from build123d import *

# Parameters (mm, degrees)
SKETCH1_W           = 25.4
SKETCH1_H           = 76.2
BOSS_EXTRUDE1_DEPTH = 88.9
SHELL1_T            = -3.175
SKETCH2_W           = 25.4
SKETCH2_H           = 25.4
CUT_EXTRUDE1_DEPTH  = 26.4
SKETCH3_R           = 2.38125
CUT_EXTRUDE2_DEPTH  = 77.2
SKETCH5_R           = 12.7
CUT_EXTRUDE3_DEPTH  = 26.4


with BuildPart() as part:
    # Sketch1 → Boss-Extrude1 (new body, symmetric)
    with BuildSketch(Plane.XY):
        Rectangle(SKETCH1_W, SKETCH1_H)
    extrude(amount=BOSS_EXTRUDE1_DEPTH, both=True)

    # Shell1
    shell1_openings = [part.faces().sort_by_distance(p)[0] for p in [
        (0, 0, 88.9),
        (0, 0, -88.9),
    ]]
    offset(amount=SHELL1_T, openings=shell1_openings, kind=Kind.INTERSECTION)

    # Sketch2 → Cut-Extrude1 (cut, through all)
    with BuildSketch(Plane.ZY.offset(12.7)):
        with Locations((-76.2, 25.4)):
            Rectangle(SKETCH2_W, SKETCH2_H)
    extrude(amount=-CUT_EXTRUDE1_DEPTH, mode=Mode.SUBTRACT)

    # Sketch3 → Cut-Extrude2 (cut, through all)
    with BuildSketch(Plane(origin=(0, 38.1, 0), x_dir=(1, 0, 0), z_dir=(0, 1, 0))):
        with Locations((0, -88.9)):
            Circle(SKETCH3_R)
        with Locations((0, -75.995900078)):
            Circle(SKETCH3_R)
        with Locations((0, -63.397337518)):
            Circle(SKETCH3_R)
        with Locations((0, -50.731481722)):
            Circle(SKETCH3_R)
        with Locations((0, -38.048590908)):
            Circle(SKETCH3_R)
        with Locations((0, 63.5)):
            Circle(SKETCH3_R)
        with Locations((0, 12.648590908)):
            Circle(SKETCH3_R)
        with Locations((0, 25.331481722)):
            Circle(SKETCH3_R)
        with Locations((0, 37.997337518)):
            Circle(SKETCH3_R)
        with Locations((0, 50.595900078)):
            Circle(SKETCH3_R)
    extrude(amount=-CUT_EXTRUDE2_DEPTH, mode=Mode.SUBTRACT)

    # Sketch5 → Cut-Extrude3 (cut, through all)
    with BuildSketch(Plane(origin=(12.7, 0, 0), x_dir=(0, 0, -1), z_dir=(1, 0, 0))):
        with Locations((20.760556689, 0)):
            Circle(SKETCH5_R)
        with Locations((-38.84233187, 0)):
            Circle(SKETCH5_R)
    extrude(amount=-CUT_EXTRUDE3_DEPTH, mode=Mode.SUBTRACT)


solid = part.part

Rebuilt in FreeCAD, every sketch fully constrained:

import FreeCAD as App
import Part
import Sketcher

V = App.Vector
Q = App.Units.Quantity


def faces_at(feature, points):
    """Names of the faces that lie closest to the given points."""
    faces = feature.Shape.Faces
    near = lambda p: min(range(len(faces)), key=lambda i: faces[i].distToShape(Part.Vertex(*p))[0])
    return sorted({f"Face{near(p) + 1}" for p in points})


def add_polygon(sketch, points):
    """Adds a closed chain of lines whose ends are joined by coincident constraints."""
    first, n = sketch.GeometryCount, len(points)
    for a, b in zip(points, points[1:] + points[:1]):
        sketch.addGeometry(Part.LineSegment(App.Vector(*a, 0), App.Vector(*b, 0)), False)
    for i in range(n):
        sketch.addConstraint(Sketcher.Constraint("Coincident", first + i, 2, first + (i + 1) % n, 1))

doc = App.newDocument("Part")
body = doc.addObject("PartDesign::Body", "Body")

sketch1 = doc.addObject("Sketcher::SketchObject", "Sketch")
body.addObject(sketch1)
sketch1.AttachmentSupport = (doc.XY_Plane, [""])
sketch1.MapMode = "FlatFace"
add_polygon(sketch1, [(-13, 38), (-13, -38), (13, -38), (13, 38)])
sketch1.addConstraint(Sketcher.Constraint("Vertical", 0))
sketch1.addConstraint(Sketcher.Constraint("Horizontal", 1))
sketch1.addConstraint(Sketcher.Constraint("Vertical", 2))
sketch1.addConstraint(Sketcher.Constraint("Horizontal", 3))
sketch1.addConstraint(Sketcher.Constraint("Symmetric", 0, 2, 2, 2, -1, 1))
sketch1.addConstraint(Sketcher.Constraint("DistanceX", 1, 1, 1, 2, Q("1 in")))
sketch1.addConstraint(Sketcher.Constraint("DistanceY", 0, 2, 0, 1, Q("3 in")))
pad1 = doc.addObject("PartDesign::Pad", "Pad")
body.addObject(pad1)
pad1.Profile = sketch1
pad1.Length = Q("7 in")
pad1.Midplane = True
doc.recompute()

thickness = doc.addObject("PartDesign::Thickness", "Thickness")
body.addObject(thickness)
thickness.Base = (pad1, faces_at(pad1, [(0, 0, 88.9), (0, 0, -88.9)]))
thickness.Value = Q("0.125 in")
thickness.Reversed = True
thickness.Join = "Intersection"

sketch2 = doc.addObject("Sketcher::SketchObject", "Sketch001")
body.addObject(sketch2)
sketch2.AttachmentSupport = (doc.YZ_Plane, [""])
sketch2.MapMode = "FlatFace"
sketch2.AttachmentOffset = App.Placement(V(0, 0, -0.5 * 25.4), App.Rotation())
add_polygon(sketch2, [(38, -89), (13, -89), (13, -64), (38, -64)])
sketch2.addConstraint(Sketcher.Constraint("Horizontal", 0))
sketch2.addConstraint(Sketcher.Constraint("Vertical", 1))
sketch2.addConstraint(Sketcher.Constraint("Horizontal", 2))
sketch2.addConstraint(Sketcher.Constraint("Vertical", 3))
sketch2.addConstraint(Sketcher.Constraint("Equal", 2, 1))
sketch2.addConstraint(Sketcher.Constraint("DistanceX", 0, 2, 0, 1, Q("1 in")))
sketch2.addConstraint(Sketcher.Constraint("DistanceX", -1, 1, 0, 2, Q("0.5 in")))
sketch2.addConstraint(Sketcher.Constraint("DistanceY", 0, 2, -1, 1, Q("3.5 in")))
pocket1 = doc.addObject("PartDesign::Pocket", "Pocket")
body.addObject(pocket1)
pocket1.Profile = sketch2
pocket1.Type = "ThroughAll"
pocket1.Reversed = True

sketch3 = doc.addObject("Sketcher::SketchObject", "Sketch002")
body.addObject(sketch3)
sketch3.AttachmentSupport = (doc.XZ_Plane, [""])
sketch3.MapMode = "FlatFace"
sketch3.AttachmentOffset = App.Placement(V(0, 0, -1.5 * 25.4), App.Rotation())
sketch3.addGeometry(Part.Circle(V(0, 88.9, 0), V(0, 0, 1), 2.4), False)
sketch3.addGeometry(Part.Circle(V(0, 76, 0), V(0, 0, 1), 2.4), False)
sketch3.addGeometry(Part.Circle(V(0, 63.4, 0), V(0, 0, 1), 2.4), False)
sketch3.addGeometry(Part.Circle(V(0, 50.7, 0), V(0, 0, 1), 2.4), False)
sketch3.addGeometry(Part.Circle(V(0, 38, 0), V(0, 0, 1), 2.4), False)
sketch3.addGeometry(Part.Circle(V(0, -63.5, 0), V(0, 0, 1), 2.4), False)
sketch3.addGeometry(Part.Circle(V(0, -12.6, 0), V(0, 0, 1), 2.4), False)
sketch3.addGeometry(Part.Circle(V(0, -25.3, 0), V(0, 0, 1), 2.4), False)
sketch3.addGeometry(Part.Circle(V(0, -38, 0), V(0, 0, 1), 2.4), False)
sketch3.addGeometry(Part.Circle(V(0, -50.6, 0), V(0, 0, 1), 2.4), False)
sketch3.addConstraint(Sketcher.Constraint("Equal", 0, 1))
sketch3.addConstraint(Sketcher.Constraint("Equal", 1, 2))
sketch3.addConstraint(Sketcher.Constraint("Equal", 2, 3))
sketch3.addConstraint(Sketcher.Constraint("Equal", 3, 4))
sketch3.addConstraint(Sketcher.Constraint("Equal", 4, 5))
sketch3.addConstraint(Sketcher.Constraint("Equal", 5, 6))
sketch3.addConstraint(Sketcher.Constraint("Equal", 6, 7))
sketch3.addConstraint(Sketcher.Constraint("Equal", 7, 8))
sketch3.addConstraint(Sketcher.Constraint("Equal", 8, 9))
sketch3.addConstraint(Sketcher.Constraint("PointOnObject", 0, 3, -2))
sketch3.addConstraint(Sketcher.Constraint("PointOnObject", 1, 3, -2))
sketch3.addConstraint(Sketcher.Constraint("PointOnObject", 2, 3, -2))
sketch3.addConstraint(Sketcher.Constraint("PointOnObject", 3, 3, -2))
sketch3.addConstraint(Sketcher.Constraint("PointOnObject", 4, 3, -2))
sketch3.addConstraint(Sketcher.Constraint("PointOnObject", 5, 3, -2))
sketch3.addConstraint(Sketcher.Constraint("PointOnObject", 6, 3, -2))
sketch3.addConstraint(Sketcher.Constraint("PointOnObject", 7, 3, -2))
sketch3.addConstraint(Sketcher.Constraint("PointOnObject", 8, 3, -2))
sketch3.addConstraint(Sketcher.Constraint("PointOnObject", 9, 3, -2))
sketch3.addConstraint(Sketcher.Constraint("Diameter", 0, Q("0.1875 in")))
sketch3.addConstraint(Sketcher.Constraint("DistanceY", 5, 3, 0, 3, Q("6 in")))
sketch3.addConstraint(Sketcher.Constraint("DistanceY", -1, 1, 0, 3, Q("3.5 in")))
sketch3.addConstraint(Sketcher.Constraint("DistanceY", -1, 1, 1, 3, 75.9959))
sketch3.addConstraint(Sketcher.Constraint("DistanceY", 9, 3, -1, 1, 50.5959))
sketch3.addConstraint(Sketcher.Constraint("DistanceY", -1, 1, 3, 3, 50.731482))
sketch3.addConstraint(Sketcher.Constraint("DistanceY", -1, 1, 4, 3, 38.048591))
sketch3.addConstraint(Sketcher.Constraint("DistanceY", 6, 3, -1, 1, 12.648591))
sketch3.addConstraint(Sketcher.Constraint("DistanceY", 7, 3, -1, 1, 25.331482))
sketch3.addConstraint(Sketcher.Constraint("DistanceY", 6, 3, 2, 3, 76.045928))
sketch3.addConstraint(Sketcher.Constraint("DistanceY", 8, 3, 4, 3, 76.045928))
pocket2 = doc.addObject("PartDesign::Pocket", "Pocket001")
body.addObject(pocket2)
pocket2.Profile = sketch3
pocket2.Type = "ThroughAll"
pocket2.Reversed = True

sketch4 = doc.addObject("Sketcher::SketchObject", "Sketch003")
body.addObject(sketch4)
sketch4.AttachmentSupport = (doc.YZ_Plane, [""])
sketch4.MapMode = "FlatFace"
sketch4.AttachmentOffset = App.Placement(V(0, 0, 0.5 * 25.4), App.Rotation())
sketch4.addGeometry(Part.Circle(V(0, -21, 0), V(0, 0, 1), 13), False)
sketch4.addGeometry(Part.Circle(V(0, 39, 0), V(0, 0, 1), 13), False)
sketch4.addConstraint(Sketcher.Constraint("Equal", 0, 1))
sketch4.addConstraint(Sketcher.Constraint("PointOnObject", 0, 3, -2))
sketch4.addConstraint(Sketcher.Constraint("PointOnObject", 1, 3, -2))
sketch4.addConstraint(Sketcher.Constraint("Diameter", 0, Q("1 in")))
sketch4.addConstraint(Sketcher.Constraint("DistanceY", -1, 1, 1, 3, 38.842332))
sketch4.addConstraint(Sketcher.Constraint("DistanceY", 0, 3, 1, 3, 59.602889))
pocket3 = doc.addObject("PartDesign::Pocket", "Pocket002")
body.addObject(pocket3)
pocket3.Profile = sketch4
pocket3.Type = "ThroughAll"

doc.recompute()
